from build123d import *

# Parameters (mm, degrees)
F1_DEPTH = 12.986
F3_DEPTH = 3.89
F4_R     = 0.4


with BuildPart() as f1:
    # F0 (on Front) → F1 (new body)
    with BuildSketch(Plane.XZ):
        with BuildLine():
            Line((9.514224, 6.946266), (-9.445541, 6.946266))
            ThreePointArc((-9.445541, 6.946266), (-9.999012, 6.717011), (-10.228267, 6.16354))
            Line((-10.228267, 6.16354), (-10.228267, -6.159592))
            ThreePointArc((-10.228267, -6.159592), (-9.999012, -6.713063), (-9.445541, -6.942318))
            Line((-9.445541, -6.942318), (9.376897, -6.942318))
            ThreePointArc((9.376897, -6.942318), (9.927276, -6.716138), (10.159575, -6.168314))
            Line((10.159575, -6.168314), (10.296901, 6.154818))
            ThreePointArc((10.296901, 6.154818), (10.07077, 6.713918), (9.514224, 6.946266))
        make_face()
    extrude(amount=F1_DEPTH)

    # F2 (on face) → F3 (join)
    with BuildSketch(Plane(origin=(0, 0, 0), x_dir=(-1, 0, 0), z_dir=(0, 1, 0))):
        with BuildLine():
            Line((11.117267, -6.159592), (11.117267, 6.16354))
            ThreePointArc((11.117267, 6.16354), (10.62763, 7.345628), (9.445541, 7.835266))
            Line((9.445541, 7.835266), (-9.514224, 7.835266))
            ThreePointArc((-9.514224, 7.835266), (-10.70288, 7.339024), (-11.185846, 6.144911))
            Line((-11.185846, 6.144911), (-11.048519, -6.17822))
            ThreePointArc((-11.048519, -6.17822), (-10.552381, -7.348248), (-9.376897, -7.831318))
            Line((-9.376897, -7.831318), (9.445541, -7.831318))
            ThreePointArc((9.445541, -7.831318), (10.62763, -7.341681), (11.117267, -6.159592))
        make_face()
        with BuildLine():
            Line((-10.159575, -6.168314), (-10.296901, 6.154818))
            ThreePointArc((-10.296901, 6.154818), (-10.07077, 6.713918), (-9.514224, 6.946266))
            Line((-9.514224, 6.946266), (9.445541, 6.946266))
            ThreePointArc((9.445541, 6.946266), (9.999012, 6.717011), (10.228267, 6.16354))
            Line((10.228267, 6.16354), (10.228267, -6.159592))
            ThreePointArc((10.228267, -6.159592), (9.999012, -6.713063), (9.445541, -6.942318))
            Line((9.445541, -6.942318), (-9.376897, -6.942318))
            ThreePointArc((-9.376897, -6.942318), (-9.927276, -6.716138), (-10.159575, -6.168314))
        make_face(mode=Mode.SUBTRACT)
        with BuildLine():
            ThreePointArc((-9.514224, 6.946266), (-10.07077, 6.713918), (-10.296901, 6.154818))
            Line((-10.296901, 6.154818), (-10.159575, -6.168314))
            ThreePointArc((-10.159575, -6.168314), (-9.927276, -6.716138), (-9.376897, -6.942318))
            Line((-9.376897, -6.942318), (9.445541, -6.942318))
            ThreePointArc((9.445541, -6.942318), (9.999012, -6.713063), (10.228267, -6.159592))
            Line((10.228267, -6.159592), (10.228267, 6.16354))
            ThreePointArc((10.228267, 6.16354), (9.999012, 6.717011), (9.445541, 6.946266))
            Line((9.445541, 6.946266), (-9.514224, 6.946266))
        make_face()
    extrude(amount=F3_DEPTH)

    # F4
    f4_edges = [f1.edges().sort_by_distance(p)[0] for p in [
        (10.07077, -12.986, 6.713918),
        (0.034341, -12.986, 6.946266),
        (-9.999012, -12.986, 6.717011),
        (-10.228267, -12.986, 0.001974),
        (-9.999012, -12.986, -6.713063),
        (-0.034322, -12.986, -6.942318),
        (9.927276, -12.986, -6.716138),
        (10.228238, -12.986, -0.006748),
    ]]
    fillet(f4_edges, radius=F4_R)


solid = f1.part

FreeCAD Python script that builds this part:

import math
import FreeCAD as App
import Part
import Sketcher
from FreeCAD import Vector
Q = App.Units.Quantity


def edges_at(feature, points):
    """Names of the edges that pass closest to the given points."""
    edges = feature.Shape.Edges
    near = lambda p: min(range(len(edges)), key=lambda i: edges[i].distToShape(Part.Vertex(*p))[0])
    return sorted({f"Edge{near(p) + 1}" for p in points})

doc = App.newDocument("Part")
body = doc.addObject("PartDesign::Body", "Body")

# Sketch on XZ plane
sketch1 = body.newObject("Sketcher::SketchObject", "Sketch")
sketch1.AttachmentSupport = (doc.getObject("XZ_Plane"), [""])
sketch1.MapMode = "FlatFace"
sketch1.addGeometry([
    Part.LineSegment(Vector(9.514224, 6.946266, 0), Vector(-9.445541, 6.946266, 0)),  # 0
    Part.ArcOfCircle(Part.Circle(Vector(-9.445541, 6.16354, 0), Vector(0, 0, 1), 0.782726), math.radians(89.999966), math.radians(180.000034)),  # 1
    Part.LineSegment(Vector(-10.228267, 6.16354, 0), Vector(-10.228267, -6.159592, 0)),  # 2
    Part.ArcOfCircle(Part.Circle(Vector(-9.445541, -6.159592, 0), Vector(0, 0, 1), 0.782726), math.radians(179.999966), math.radians(270.000034)),  # 3
    Part.LineSegment(Vector(-9.445541, -6.942318, 0), Vector(9.376897, -6.942318, 0)),  # 4
    Part.ArcOfCircle(Part.Circle(Vector(9.376897, -6.159592, 0), Vector(0, 0, 1), 0.782726), math.radians(-90.000026), math.radians(-0.638484)),  # 5
    Part.LineSegment(Vector(10.159575, -6.168314, 0), Vector(10.296901, 6.154818, 0)),  # 6
    Part.ArcOfCircle(Part.Circle(Vector(9.514223, 6.16354, 0), Vector(0, 0, 1), 0.782726), math.radians(-0.63845), math.radians(89.999954)),  # 7
], False)
sketch1.addConstraint([
    Sketcher.Constraint("Tangent", 0, 2, 1, 1),
    Sketcher.Constraint("Tangent", 1, 2, 2, 1),
    Sketcher.Constraint("Tangent", 2, 2, 3, 1),
    Sketcher.Constraint("Tangent", 3, 2, 4, 1),
    Sketcher.Constraint("Tangent", 4, 2, 5, 1),
    Sketcher.Constraint("Tangent", 5, 2, 6, 1),
    Sketcher.Constraint("Tangent", 6, 2, 7, 1),
    Sketcher.Constraint("Tangent", 7, 2, 0, 1),
    Sketcher.Constraint("Horizontal", 0),
    Sketcher.Constraint("Vertical", 2),
    Sketcher.Constraint("Horizontal", 4),
    Sketcher.Constraint("Equal", 1, 3),
    Sketcher.Constraint("Equal", 3, 5),
    Sketcher.Constraint("Equal", 5, 7),
    Sketcher.Constraint("Radius", 1, Q("0.782726 mm")),
    Sketcher.Constraint("DistanceX", -1, 1, 6, 2, Q("10.296901 mm")),
    Sketcher.Constraint("DistanceX", 0, 2, 0, 1, Q("18.959765 mm")),
    Sketcher.Constraint("DistanceX", 4, 1, 4, 2, Q("18.822438 mm")),
    Sketcher.Constraint("DistanceY", 2, 2, 2, 1, Q("12.323132 mm")),
    Sketcher.Constraint("DistanceY", -1, 1, 1, 3, Q("6.16354 mm")),
])
pad1 = body.newObject("PartDesign::Pad", "Pad")
pad1.Profile = sketch1
pad1.Length = 12.986

# Sketch on XZ plane
sketch2 = body.newObject("Sketcher::SketchObject", "Sketch001")
sketch2.AttachmentSupport = (doc.getObject("XZ_Plane"), [""])
sketch2.MapMode = "FlatFace"
sketch2.addGeometry([
    Part.LineSegment(Vector(-11.117267, -6.159592, 0), Vector(-11.117267, 6.16354, 0)),  # 0
    Part.ArcOfCircle(Part.Circle(Vector(-9.44554, 6.163539, 0), Vector(0, 0, 1), 1.671727), math.radians(90.000034), math.radians(179.999966)),  # 1
    Part.LineSegment(Vector(-9.445541, 7.835266, 0), Vector(9.514224, 7.835266, 0)),  # 2
    Part.ArcOfCircle(Part.Circle(Vector(9.514223, 6.163539, 0), Vector(0, 0, 1), 1.671727), math.radians(-0.638453), math.radians(89.999953)),  # 3
    Part.LineSegment(Vector(11.185846, 6.144911, 0), Vector(11.048519, -6.17822, 0)),  # 4
    Part.ArcOfCircle(Part.Circle(Vector(9.376896, -6.159591, 0), Vector(0, 0, 1), 1.671727), math.radians(-89.999953), math.radians(-0.638499)),  # 5
    Part.LineSegment(Vector(9.376897, -7.831318, 0), Vector(-9.445541, -7.831318, 0)),  # 6
    Part.ArcOfCircle(Part.Circle(Vector(-9.445542, -6.159593, 0), Vector(0, 0, 1), 1.671725), math.radians(179.999976), math.radians(270.000024)),  # 7
], False)
sketch2.addConstraint([
    Sketcher.Constraint("Tangent", 0, 2, 1, 2),
    Sketcher.Constraint("Tangent", 1, 1, 2, 1),
    Sketcher.Constraint("Tangent", 2, 2, 3, 2),
    Sketcher.Constraint("Tangent", 3, 1, 4, 1),
    Sketcher.Constraint("Tangent", 4, 2, 5, 2),
    Sketcher.Constraint("Tangent", 5, 1, 6, 1),
    Sketcher.Constraint("Tangent", 6, 2, 7, 2),
    Sketcher.Constraint("Tangent", 7, 1, 0, 1),
    Sketcher.Constraint("Vertical", 0),
    Sketcher.Constraint("Horizontal", 2),
    Sketcher.Constraint("Horizontal", 6),
    Sketcher.Constraint("Equal", 1, 3),
    Sketcher.Constraint("Equal", 3, 5),
    Sketcher.Constraint("Equal", 5, 7),
    Sketcher.Constraint("Radius", 1, Q("1.671727 mm")),
    Sketcher.Constraint("DistanceY", 5, 3, 3, 1, Q("12.304502 mm")),
    Sketcher.Constraint("DistanceX", 2, 1, 2, 2, Q("18.959765 mm")),
    Sketcher.Constraint("DistanceX", 6, 2, 6, 1, Q("18.822438 mm")),
    Sketcher.Constraint("DistanceX", 1, 3, -1, 1, Q("9.44554 mm")),
    Sketcher.Constraint("DistanceY", -1, 1, 1, 3, Q("6.163539 mm")),
])
pad2 = body.newObject("PartDesign::Pad", "Pad001")
pad2.Profile = sketch2
pad2.Length = 3.89
pad2.Reversed = True
doc.recompute()

fillet = body.newObject("PartDesign::Fillet", "Fillet")
fillet.Base = (pad2, edges_at(pad2, [
    (10.071, -12.986, 6.714),
    (0.034, -12.986, 6.946),
    (-9.999, -12.986, 6.717),
    (-10.228, -12.986, 0.002),
    (-9.999, -12.986, -6.713),
    (-0.034, -12.986, -6.942),
    (9.927, -12.986, -6.716),
    (10.228, -12.986, -0.007),
]))
fillet.Radius = 0.4

doc.recompute()
